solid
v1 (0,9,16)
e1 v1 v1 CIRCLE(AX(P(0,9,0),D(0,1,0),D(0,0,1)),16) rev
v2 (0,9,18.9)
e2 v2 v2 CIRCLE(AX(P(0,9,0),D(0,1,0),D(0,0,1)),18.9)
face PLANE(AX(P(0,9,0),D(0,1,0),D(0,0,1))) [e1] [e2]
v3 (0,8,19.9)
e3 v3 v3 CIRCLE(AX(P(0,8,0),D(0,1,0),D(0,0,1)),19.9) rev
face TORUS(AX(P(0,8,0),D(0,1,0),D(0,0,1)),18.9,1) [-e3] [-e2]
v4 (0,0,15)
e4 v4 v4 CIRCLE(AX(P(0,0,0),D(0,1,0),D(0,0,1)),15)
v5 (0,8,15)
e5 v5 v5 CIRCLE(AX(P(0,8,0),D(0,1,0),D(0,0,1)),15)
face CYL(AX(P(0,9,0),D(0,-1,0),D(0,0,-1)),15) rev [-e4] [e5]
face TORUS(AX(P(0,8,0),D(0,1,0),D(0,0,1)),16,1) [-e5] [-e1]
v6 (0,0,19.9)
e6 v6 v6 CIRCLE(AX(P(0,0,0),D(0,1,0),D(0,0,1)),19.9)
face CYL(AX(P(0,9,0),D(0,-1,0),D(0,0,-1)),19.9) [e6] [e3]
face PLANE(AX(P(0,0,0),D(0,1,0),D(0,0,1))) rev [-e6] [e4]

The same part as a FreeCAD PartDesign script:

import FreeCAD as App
import Part
import Sketcher


def edges_at(feature, points):
    """Names of the edges that pass closest to the given points."""
    edges = feature.Shape.Edges
    near = lambda p: min(range(len(edges)), key=lambda i: edges[i].distToShape(Part.Vertex(*p))[0])
    return sorted({f"Edge{near(p) + 1}" for p in points})

doc = App.newDocument("Part")
body = doc.addObject("PartDesign::Body", "Body")

# Sketch on XZ plane
sketch1 = body.newObject("Sketcher::SketchObject", "Sketch")
sketch1.AttachmentSupport = (doc.getObject("XZ_Plane"), [""])
sketch1.MapMode = "FlatFace"
sketch1.addGeometry([
    Part.Circle(App.Vector(0, 0, 0), App.Vector(0, 0, 1), 20),
    Part.Circle(App.Vector(0, 0, 0), App.Vector(0, 0, 1), 15),
], False)
sketch1.addConstraint([
    Sketcher.Constraint("Coincident", 0, 3, -1, 1),
    Sketcher.Constraint("Coincident", 1, 3, -1, 1),
    Sketcher.Constraint("Diameter", 1, 30.0),
    Sketcher.Constraint("Diameter", 0, 39.8),
])
pad1 = body.newObject("PartDesign::Pad", "Pad")
pad1.Profile = sketch1
pad1.Length = 9
pad1.Reversed = True
doc.recompute()

fillet = body.newObject("PartDesign::Fillet", "Fillet")
fillet.Base = (pad1, edges_at(pad1, [(0, 9, -19.9), (0, 9, -15)]))
fillet.Radius = 1

doc.recompute()
